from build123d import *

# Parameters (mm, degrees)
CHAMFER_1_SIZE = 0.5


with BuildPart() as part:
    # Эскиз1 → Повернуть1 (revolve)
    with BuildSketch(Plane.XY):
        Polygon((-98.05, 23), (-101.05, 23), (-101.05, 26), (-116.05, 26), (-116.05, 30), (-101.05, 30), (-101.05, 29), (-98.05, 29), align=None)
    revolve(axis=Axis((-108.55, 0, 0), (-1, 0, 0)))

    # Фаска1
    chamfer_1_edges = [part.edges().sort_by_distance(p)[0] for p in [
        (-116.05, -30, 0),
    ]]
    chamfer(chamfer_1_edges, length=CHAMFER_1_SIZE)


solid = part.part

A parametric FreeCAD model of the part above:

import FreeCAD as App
import Part
import Sketcher

V = App.Vector


def edges_at(feature, points):
    """Names of the edges that pass closest to the given points."""
    edges = feature.Shape.Edges
    near = lambda p: min(range(len(edges)), key=lambda i: edges[i].distToShape(Part.Vertex(*p))[0])
    return sorted({f"Edge{near(p) + 1}" for p in points})

doc = App.newDocument("Part")
body = doc.addObject("PartDesign::Body", "Body")

# Sketch on XY plane
sketch1 = doc.addObject("Sketcher::SketchObject", "Sketch")
body.addObject(sketch1)
sketch1.AttachmentSupport = (doc.XY_Plane, [""])
sketch1.MapMode = "FlatFace"
sketch1.addGeometry(Part.LineSegment(V(-101, 23, 0), V(-98, 23, 0)), False)
sketch1.addGeometry(Part.LineSegment(V(-98, 23, 0), V(-98, 29, 0)), False)
sketch1.addGeometry(Part.LineSegment(V(-98, 29, 0), V(-101, 29, 0)), False)
sketch1.addGeometry(Part.LineSegment(V(-101, 29, 0), V(-101, 30, 0)), False)
sketch1.addGeometry(Part.LineSegment(V(-101, 30, 0), V(-116, 30, 0)), False)
sketch1.addGeometry(Part.LineSegment(V(-116, 30, 0), V(-116, 26, 0)), False)
sketch1.addGeometry(Part.LineSegment(V(-116, 26, 0), V(-101, 26, 0)), False)
sketch1.addGeometry(Part.LineSegment(V(-101, 26, 0), V(-101, 23, 0)), False)
sketch1.addConstraint(Sketcher.Constraint("Coincident", 0, 2, 1, 1))
sketch1.addConstraint(Sketcher.Constraint("Coincident", 1, 2, 2, 1))
sketch1.addConstraint(Sketcher.Constraint("Coincident", 2, 2, 3, 1))
sketch1.addConstraint(Sketcher.Constraint("Coincident", 3, 2, 4, 1))
sketch1.addConstraint(Sketcher.Constraint("Coincident", 4, 2, 5, 1))
sketch1.addConstraint(Sketcher.Constraint("Coincident", 5, 2, 6, 1))
sketch1.addConstraint(Sketcher.Constraint("Coincident", 6, 2, 7, 1))
sketch1.addConstraint(Sketcher.Constraint("Coincident", 7, 2, 0, 1))
sketch1.addConstraint(Sketcher.Constraint("Horizontal", 0))
sketch1.addConstraint(Sketcher.Constraint("Vertical", 1))
sketch1.addConstraint(Sketcher.Constraint("Horizontal", 2))
sketch1.addConstraint(Sketcher.Constraint("Vertical", 3))
sketch1.addConstraint(Sketcher.Constraint("Horizontal", 4))
sketch1.addConstraint(Sketcher.Constraint("Vertical", 5))
sketch1.addConstraint(Sketcher.Constraint("Horizontal", 6))
sketch1.addConstraint(Sketcher.Constraint("Vertical", 7))
sketch1.addConstraint(Sketcher.Constraint("Vertical", 3, 2, 6, 2))
sketch1.addConstraint(Sketcher.Constraint("Equal", 2, 7))
sketch1.addConstraint(Sketcher.Constraint("DistanceX", 0, 1, 0, 2, 3.0))
sketch1.addConstraint(Sketcher.Constraint("DistanceX", 4, 2, 4, 1, 15.0))
sketch1.addConstraint(Sketcher.Constraint("DistanceY", 1, 1, 1, 2, 6.0))
sketch1.addConstraint(Sketcher.Constraint("DistanceY", 3, 1, 3, 2, 1.0))
sketch1.addConstraint(Sketcher.Constraint("DistanceY", -1, 1, 0, 2, 23.0))
sketch1.addConstraint(Sketcher.Constraint("DistanceX", 0, 2, -1, 1, 98.05))
revolution = doc.addObject("PartDesign::Revolution", "Revolution")
body.addObject(revolution)
revolution.Profile = sketch1
revolution.ReferenceAxis = (sketch1, ["H_Axis"])
revolution.Angle = 360
doc.recompute()

chamfer = doc.addObject("PartDesign::Chamfer", "Chamfer")
body.addObject(chamfer)
chamfer.Base = (revolution, edges_at(revolution, [(-116.05, -30, 0)]))
chamfer.Size = 0.5

doc.recompute()
